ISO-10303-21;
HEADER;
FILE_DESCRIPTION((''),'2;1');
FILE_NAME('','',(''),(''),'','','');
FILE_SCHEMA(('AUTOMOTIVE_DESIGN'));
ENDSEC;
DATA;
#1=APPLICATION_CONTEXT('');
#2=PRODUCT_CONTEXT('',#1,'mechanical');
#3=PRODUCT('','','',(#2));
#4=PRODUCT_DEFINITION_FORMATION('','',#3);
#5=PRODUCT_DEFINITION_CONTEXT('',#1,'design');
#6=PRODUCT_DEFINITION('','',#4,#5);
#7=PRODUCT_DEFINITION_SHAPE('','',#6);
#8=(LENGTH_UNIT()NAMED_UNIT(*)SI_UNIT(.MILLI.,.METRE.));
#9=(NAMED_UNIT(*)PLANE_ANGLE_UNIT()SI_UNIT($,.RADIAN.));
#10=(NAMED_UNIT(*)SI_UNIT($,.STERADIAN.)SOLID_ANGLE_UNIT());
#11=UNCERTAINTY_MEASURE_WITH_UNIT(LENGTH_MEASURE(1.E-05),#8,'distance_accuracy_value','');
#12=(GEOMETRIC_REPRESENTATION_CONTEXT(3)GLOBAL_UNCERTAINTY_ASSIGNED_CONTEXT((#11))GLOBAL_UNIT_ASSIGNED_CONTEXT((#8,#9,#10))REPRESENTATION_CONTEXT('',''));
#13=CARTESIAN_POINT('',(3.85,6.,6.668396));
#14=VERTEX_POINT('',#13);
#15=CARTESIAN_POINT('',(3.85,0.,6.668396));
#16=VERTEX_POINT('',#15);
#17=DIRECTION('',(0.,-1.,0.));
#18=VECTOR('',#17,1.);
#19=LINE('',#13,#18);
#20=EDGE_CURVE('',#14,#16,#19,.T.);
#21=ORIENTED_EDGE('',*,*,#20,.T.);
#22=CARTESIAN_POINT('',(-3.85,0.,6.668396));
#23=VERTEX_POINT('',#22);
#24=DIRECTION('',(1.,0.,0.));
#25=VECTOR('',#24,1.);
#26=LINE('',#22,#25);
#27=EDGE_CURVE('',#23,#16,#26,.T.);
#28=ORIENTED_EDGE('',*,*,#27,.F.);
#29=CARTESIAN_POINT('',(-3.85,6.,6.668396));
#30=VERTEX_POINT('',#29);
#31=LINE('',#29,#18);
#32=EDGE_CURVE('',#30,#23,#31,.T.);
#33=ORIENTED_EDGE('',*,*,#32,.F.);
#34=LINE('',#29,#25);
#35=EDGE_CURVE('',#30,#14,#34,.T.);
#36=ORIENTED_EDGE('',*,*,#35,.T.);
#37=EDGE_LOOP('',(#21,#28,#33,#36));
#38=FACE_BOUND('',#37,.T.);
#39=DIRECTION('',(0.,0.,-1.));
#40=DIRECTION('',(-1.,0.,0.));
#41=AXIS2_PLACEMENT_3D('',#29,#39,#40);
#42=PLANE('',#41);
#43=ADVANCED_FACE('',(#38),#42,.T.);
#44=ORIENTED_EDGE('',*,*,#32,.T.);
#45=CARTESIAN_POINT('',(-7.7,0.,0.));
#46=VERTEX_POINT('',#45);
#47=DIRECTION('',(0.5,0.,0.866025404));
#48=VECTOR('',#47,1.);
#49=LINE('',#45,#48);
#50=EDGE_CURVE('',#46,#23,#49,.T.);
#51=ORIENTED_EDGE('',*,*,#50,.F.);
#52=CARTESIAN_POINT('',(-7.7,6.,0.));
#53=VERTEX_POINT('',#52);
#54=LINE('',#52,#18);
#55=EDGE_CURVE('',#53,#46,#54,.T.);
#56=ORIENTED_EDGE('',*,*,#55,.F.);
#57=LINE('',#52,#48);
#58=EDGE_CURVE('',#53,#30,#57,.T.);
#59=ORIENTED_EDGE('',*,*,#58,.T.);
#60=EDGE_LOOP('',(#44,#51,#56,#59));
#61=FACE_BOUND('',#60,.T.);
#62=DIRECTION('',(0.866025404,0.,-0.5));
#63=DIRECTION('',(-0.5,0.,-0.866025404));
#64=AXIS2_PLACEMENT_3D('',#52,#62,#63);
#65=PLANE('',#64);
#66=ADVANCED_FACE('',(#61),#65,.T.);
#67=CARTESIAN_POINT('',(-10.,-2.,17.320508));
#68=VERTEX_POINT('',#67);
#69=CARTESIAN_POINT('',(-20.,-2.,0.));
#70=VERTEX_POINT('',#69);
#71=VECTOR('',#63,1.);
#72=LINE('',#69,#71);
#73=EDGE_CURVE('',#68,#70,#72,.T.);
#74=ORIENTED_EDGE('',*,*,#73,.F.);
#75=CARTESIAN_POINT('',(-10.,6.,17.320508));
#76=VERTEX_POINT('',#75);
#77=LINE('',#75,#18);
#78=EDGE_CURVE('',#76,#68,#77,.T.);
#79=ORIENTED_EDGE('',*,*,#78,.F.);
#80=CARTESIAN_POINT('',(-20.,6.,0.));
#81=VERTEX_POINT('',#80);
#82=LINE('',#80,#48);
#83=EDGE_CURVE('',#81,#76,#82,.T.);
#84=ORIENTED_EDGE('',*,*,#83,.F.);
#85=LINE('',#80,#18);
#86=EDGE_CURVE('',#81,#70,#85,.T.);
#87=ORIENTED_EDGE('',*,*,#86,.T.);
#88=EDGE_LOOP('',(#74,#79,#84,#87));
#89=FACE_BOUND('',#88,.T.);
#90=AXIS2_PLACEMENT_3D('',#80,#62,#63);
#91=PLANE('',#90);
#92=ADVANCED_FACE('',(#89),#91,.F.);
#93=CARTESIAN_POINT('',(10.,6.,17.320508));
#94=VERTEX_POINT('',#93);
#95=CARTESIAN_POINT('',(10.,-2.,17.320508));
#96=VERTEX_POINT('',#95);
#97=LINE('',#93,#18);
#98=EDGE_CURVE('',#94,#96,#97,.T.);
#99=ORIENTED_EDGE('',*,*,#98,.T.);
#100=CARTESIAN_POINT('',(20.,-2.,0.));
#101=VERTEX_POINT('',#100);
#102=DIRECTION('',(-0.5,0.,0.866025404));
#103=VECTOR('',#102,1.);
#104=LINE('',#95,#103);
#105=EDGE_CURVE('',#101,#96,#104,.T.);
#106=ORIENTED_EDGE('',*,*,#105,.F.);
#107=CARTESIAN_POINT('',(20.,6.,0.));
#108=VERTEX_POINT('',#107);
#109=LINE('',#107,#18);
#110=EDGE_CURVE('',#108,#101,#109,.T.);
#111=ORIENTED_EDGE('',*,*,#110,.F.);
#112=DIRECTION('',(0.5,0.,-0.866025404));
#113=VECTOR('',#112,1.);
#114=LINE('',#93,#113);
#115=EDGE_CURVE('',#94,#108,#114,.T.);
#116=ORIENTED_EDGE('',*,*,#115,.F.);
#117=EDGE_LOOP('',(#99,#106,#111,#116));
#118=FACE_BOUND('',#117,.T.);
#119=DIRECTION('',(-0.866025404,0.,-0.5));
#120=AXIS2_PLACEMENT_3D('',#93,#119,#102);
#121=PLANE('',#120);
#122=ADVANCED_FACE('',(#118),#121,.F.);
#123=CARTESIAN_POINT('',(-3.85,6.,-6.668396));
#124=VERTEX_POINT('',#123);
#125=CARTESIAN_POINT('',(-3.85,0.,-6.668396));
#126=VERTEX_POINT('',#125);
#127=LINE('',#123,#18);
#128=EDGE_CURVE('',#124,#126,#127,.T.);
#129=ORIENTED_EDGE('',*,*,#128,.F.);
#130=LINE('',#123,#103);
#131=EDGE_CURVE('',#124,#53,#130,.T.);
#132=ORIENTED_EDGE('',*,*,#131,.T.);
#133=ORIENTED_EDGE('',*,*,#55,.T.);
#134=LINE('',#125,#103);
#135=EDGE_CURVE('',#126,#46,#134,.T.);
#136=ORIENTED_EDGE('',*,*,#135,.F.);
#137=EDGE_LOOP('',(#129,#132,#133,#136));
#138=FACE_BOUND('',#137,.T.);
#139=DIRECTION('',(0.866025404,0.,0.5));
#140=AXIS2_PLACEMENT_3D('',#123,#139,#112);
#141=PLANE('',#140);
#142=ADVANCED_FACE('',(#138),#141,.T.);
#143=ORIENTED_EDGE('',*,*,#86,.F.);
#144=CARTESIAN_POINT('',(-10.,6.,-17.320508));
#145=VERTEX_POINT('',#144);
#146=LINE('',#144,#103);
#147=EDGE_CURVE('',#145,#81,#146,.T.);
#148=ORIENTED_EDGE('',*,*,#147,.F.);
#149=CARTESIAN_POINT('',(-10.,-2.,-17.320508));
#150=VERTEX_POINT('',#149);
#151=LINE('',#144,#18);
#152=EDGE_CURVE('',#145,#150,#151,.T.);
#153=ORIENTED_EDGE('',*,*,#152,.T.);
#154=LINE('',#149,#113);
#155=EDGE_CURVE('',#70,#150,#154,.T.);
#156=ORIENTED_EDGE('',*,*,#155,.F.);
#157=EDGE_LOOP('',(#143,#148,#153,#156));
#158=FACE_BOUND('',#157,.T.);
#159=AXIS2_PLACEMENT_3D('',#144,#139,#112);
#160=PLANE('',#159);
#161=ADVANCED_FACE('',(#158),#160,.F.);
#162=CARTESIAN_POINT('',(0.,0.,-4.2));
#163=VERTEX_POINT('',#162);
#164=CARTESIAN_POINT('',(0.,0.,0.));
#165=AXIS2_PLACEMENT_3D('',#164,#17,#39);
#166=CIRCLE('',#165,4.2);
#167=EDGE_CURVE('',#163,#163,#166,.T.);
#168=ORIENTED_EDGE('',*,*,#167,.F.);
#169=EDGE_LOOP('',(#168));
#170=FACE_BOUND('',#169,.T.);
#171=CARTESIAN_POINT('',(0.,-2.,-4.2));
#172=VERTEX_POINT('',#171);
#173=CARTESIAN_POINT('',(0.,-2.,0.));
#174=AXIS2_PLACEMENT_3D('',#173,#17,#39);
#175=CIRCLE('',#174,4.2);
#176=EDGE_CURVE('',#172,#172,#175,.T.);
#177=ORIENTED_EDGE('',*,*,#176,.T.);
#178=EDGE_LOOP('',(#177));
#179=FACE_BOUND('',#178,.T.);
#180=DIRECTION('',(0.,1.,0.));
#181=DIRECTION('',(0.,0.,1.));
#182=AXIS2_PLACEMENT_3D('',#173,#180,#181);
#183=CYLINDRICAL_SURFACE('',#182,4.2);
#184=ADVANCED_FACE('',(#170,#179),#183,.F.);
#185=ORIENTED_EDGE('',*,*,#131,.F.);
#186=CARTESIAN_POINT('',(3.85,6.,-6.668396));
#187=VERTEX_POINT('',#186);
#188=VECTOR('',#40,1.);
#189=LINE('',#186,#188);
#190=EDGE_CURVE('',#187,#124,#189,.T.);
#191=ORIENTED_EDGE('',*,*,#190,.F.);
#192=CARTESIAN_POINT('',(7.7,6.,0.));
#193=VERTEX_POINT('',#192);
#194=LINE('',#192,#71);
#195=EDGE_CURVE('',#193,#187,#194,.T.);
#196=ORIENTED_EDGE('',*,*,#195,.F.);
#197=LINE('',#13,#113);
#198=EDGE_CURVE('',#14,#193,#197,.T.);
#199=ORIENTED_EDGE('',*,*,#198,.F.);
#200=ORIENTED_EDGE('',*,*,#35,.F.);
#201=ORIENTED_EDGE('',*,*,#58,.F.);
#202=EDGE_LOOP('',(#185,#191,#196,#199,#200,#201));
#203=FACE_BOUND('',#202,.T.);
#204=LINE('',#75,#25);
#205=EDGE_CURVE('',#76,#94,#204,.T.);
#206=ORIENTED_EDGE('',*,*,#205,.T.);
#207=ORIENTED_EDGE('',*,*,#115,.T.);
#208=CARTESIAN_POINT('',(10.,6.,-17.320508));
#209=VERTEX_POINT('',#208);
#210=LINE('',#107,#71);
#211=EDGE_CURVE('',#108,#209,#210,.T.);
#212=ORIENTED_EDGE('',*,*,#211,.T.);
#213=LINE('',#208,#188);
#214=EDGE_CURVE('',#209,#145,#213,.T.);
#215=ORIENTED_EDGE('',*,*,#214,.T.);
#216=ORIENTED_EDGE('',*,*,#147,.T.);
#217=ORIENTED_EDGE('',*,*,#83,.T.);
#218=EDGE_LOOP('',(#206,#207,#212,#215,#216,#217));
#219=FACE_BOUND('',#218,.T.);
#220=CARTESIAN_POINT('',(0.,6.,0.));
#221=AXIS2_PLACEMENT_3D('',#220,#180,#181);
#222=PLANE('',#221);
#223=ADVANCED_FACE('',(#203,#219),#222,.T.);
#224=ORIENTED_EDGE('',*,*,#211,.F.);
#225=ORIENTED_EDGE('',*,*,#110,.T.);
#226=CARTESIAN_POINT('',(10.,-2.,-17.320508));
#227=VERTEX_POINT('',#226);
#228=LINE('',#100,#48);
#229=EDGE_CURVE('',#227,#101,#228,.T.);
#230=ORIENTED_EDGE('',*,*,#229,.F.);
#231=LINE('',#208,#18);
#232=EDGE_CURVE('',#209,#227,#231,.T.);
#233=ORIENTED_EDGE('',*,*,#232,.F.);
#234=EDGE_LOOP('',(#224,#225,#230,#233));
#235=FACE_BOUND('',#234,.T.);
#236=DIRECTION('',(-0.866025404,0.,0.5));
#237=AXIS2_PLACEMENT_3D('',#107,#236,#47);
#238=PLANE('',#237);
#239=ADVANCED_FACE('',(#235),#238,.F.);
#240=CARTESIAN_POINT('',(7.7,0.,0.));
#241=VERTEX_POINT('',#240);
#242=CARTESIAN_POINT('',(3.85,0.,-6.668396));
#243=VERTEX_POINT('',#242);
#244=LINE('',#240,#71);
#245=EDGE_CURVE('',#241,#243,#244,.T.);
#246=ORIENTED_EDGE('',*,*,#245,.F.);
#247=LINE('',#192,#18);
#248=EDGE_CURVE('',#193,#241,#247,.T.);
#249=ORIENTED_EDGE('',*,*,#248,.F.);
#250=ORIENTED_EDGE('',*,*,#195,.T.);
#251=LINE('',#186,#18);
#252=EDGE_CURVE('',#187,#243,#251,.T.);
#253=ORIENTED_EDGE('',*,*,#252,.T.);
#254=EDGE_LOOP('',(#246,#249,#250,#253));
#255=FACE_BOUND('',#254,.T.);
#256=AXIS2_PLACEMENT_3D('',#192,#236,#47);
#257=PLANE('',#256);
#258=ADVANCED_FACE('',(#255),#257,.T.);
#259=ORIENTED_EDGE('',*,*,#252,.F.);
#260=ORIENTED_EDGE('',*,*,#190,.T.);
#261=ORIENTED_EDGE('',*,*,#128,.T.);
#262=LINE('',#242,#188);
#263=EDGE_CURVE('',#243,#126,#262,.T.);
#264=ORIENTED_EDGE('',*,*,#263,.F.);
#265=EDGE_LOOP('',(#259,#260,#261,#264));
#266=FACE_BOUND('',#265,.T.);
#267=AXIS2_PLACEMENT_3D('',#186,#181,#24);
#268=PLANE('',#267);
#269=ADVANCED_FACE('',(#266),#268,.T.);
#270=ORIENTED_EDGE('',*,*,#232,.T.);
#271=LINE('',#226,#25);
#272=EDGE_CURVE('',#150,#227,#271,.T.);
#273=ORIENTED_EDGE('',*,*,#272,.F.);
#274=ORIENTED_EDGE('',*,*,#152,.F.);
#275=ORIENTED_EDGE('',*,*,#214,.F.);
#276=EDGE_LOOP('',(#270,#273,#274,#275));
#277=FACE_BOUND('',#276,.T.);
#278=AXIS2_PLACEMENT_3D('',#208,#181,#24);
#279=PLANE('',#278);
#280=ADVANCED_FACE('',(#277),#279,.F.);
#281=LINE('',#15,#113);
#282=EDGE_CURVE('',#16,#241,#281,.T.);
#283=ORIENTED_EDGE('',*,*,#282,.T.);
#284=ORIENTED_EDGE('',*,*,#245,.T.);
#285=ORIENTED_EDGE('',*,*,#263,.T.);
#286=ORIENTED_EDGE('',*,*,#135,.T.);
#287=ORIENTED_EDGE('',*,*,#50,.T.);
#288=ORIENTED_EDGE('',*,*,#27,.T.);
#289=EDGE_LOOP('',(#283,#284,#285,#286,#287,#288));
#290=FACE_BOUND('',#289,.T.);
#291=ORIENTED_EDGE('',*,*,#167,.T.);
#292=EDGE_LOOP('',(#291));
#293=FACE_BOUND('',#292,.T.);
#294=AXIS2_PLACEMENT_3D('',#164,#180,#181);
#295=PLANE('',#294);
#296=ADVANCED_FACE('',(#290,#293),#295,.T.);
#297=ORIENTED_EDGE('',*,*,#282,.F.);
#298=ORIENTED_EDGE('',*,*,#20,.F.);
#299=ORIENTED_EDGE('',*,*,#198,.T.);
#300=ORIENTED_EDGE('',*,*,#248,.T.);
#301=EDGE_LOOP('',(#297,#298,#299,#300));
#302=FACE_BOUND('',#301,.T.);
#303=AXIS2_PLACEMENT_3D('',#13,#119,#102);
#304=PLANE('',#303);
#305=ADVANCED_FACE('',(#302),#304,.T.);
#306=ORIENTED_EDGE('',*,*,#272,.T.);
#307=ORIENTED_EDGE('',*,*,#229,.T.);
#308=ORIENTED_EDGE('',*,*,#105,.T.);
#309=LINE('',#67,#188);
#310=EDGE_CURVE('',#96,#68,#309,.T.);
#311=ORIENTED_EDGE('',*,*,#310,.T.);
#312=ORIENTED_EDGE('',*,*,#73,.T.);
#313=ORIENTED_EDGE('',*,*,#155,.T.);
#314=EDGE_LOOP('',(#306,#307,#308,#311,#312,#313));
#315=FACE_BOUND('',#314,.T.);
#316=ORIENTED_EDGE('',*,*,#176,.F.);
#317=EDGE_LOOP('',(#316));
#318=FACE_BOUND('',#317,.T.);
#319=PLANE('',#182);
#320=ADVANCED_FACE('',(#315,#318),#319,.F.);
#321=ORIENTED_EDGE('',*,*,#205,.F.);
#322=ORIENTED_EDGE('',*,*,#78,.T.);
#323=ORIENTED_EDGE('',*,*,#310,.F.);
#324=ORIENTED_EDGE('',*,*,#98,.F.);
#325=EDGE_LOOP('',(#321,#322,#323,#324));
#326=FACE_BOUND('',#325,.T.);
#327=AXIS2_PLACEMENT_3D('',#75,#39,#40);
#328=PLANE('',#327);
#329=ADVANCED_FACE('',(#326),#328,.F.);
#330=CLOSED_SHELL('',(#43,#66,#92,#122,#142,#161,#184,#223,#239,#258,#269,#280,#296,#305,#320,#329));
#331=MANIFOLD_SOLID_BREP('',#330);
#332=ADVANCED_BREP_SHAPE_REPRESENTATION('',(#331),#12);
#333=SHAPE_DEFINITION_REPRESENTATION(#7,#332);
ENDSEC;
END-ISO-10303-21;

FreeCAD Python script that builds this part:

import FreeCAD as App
import Part
import Sketcher
from FreeCAD import Vector
Q = App.Units.Quantity


def add_polygon(sketch, points):
    """Adds a closed chain of lines whose ends are joined by coincident constraints."""
    first, n = sketch.GeometryCount, len(points)
    for a, b in zip(points, points[1:] + points[:1]):
        sketch.addGeometry(Part.LineSegment(App.Vector(*a, 0), App.Vector(*b, 0)), False)
    for i in range(n):
        sketch.addConstraint(Sketcher.Constraint("Coincident", first + i, 2, first + (i + 1) % n, 1))

doc = App.newDocument("Part")
body = doc.addObject("PartDesign::Body", "Body")

# Sketch on XZ plane
sketch1 = doc.addObject("Sketcher::SketchObject", "Sketch")
body.addObject(sketch1)
sketch1.AttachmentSupport = (doc.XZ_Plane, [""])
sketch1.MapMode = "FlatFace"
add_polygon(sketch1, [(-10, -17), (-20, 0), (-10, 17), (10, 17), (20, 0), (10, -17)])  # lines 0-5
add_polygon(sketch1, [(-8, 0), (-4, -7), (4, -7), (8, 0), (4, 7), (-4, 7)])  # lines 6-11
sketch1.addConstraint(Sketcher.Constraint("Horizontal", 2))
sketch1.addConstraint(Sketcher.Constraint("Horizontal", 5))
sketch1.addConstraint(Sketcher.Constraint("Horizontal", 7))
sketch1.addConstraint(Sketcher.Constraint("Horizontal", 10))
sketch1.addConstraint(Sketcher.Constraint("Symmetric", 0, 2, 3, 2, -1, 1))
sketch1.addConstraint(Sketcher.Constraint("Symmetric", 1, 2, 4, 2, -1, 1))
sketch1.addConstraint(Sketcher.Constraint("Symmetric", 6, 2, 9, 2, -1, 1))
sketch1.addConstraint(Sketcher.Constraint("Symmetric", 8, 2, 11, 2, -1, 1))
sketch1.addConstraint(Sketcher.Constraint("PointOnObject", 0, 2, -1))
sketch1.addConstraint(Sketcher.Constraint("PointOnObject", 8, 2, -1))
sketch1.addConstraint(Sketcher.Constraint("Parallel", 0, 3))
sketch1.addConstraint(Sketcher.Constraint("Parallel", 3, 6))
sketch1.addConstraint(Sketcher.Constraint("Parallel", 4, 8))
sketch1.addConstraint(Sketcher.Constraint("Parallel", 8, 11))
sketch1.addConstraint(Sketcher.Constraint("Vertical", 2, 2, 4, 2))
sketch1.addConstraint(Sketcher.Constraint("DistanceX", 2, 1, 2, 2, 20.0))
sketch1.addConstraint(Sketcher.Constraint("Angle", 0, Q("120 deg")))
sketch1.addConstraint(Sketcher.Constraint("Distance", 0, 20.0))
sketch1.addConstraint(Sketcher.Constraint("DistanceX", 7, 1, 7, 2, 7.7))
sketch1.addConstraint(Sketcher.Constraint("Distance", 6, 7.7))
pad1 = doc.addObject("PartDesign::Pad", "Pad")
body.addObject(pad1)
pad1.Profile = sketch1
pad1.Length = 6
pad1.Reversed = True

# Sketch on XZ plane
sketch2 = doc.addObject("Sketcher::SketchObject", "Sketch001")
body.addObject(sketch2)
sketch2.AttachmentSupport = (doc.XZ_Plane, [""])
sketch2.MapMode = "FlatFace"
add_polygon(sketch2, [(10, -17.3), (20, 0), (10, 17.3), (-10, 17.3), (-20, 0), (-10, -17.3)])  # lines 0-5
sketch2.addGeometry(Part.Circle(Vector(0, 0, 0), Vector(0, 0, 1), 4.2), False)  # 6
sketch2.addConstraint(Sketcher.Constraint("Horizontal", 2))
sketch2.addConstraint(Sketcher.Constraint("Horizontal", 5))
sketch2.addConstraint(Sketcher.Constraint("Coincident", 6, 3, -1, 1))
sketch2.addConstraint(Sketcher.Constraint("Symmetric", 0, 2, 3, 2, -1, 1))
sketch2.addConstraint(Sketcher.Constraint("Symmetric", 1, 2, 4, 2, -1, 1))
sketch2.addConstraint(Sketcher.Constraint("PointOnObject", 0, 2, -1))
sketch2.addConstraint(Sketcher.Constraint("Parallel", 0, 3))
sketch2.addConstraint(Sketcher.Constraint("Vertical", 2, 2, 4, 2))
sketch2.addConstraint(Sketcher.Constraint("Diameter", 6, 8.4))
sketch2.addConstraint(Sketcher.Constraint("DistanceX", 2, 2, 2, 1, 20.0))
sketch2.addConstraint(Sketcher.Constraint("Angle", 0, Q("60 deg")))
sketch2.addConstraint(Sketcher.Constraint("Distance", 0, 20.0))
pad2 = doc.addObject("PartDesign::Pad", "Pad001")
body.addObject(pad2)
pad2.Profile = sketch2
pad2.Length = 2

doc.recompute()
